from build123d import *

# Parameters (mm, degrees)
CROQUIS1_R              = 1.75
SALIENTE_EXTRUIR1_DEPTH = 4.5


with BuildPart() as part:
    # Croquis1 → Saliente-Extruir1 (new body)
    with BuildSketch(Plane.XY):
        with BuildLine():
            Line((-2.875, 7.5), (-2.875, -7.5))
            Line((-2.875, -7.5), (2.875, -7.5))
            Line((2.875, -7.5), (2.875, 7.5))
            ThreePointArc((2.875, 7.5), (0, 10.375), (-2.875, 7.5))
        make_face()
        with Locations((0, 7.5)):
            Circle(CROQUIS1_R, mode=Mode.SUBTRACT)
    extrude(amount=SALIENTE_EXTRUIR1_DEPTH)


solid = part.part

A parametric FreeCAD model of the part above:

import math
import FreeCAD as App
import Part
import Sketcher

doc = App.newDocument("Part")
body = doc.addObject("PartDesign::Body", "Body")

sketch1 = body.newObject("Sketcher::SketchObject", "Sketch")
sketch1.AttachmentSupport = (doc.getObject("XY_Plane"), [""])
sketch1.MapMode = "FlatFace"
sketch1.addGeometry([
    Part.LineSegment(App.Vector(-2.9, 7.5, 0), App.Vector(-2.9, -7.5, 0)),
    Part.LineSegment(App.Vector(-2.9, -7.5, 0), App.Vector(2.9, -7.5, 0)),
    Part.LineSegment(App.Vector(2.9, -7.5, 0), App.Vector(2.9, 7.5, 0)),
    Part.ArcOfCircle(Part.Circle(App.Vector(0, 7.5, 0), App.Vector(0, 0, 1), 2.9), math.radians(0), math.radians(180)),
    Part.Circle(App.Vector(0, 7.5, 0), App.Vector(0, 0, 1), 1.8),
], False)
sketch1.addConstraint([
    Sketcher.Constraint("Coincident", 0, 2, 1, 1),
    Sketcher.Constraint("Coincident", 1, 2, 2, 1),
    Sketcher.Constraint("Tangent", 2, 2, 3, 1),
    Sketcher.Constraint("Tangent", 3, 2, 0, 1),
    Sketcher.Constraint("Vertical", 0),
    Sketcher.Constraint("Horizontal", 1),
    Sketcher.Constraint("Vertical", 2),
    Sketcher.Constraint("Coincident", 4, 3, 3, 3),
    Sketcher.Constraint("Symmetric", 0, 2, 2, 2, -1, 1),
    Sketcher.Constraint("Diameter", 4, 3.5),
    Sketcher.Constraint("DistanceY", 0, 2, 0, 1, 15.0),
    Sketcher.Constraint("Radius", 3, 2.875),
])
pad1 = body.newObject("PartDesign::Pad", "Pad")
pad1.Profile = sketch1
pad1.Length = 4.5

doc.recompute()
